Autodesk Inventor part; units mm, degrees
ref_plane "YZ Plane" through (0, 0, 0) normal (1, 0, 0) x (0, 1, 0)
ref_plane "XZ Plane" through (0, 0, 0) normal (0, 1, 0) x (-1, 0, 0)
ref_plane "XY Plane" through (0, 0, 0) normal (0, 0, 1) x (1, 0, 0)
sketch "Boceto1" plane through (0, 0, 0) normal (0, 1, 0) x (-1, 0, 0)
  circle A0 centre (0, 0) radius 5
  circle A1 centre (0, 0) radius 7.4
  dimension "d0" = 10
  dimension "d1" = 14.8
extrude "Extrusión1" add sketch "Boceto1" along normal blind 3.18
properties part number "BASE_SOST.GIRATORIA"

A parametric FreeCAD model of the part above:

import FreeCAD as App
import Part
import Sketcher

doc = App.newDocument("Part")
body = doc.addObject("PartDesign::Body", "Body")

sketch1 = body.newObject("Sketcher::SketchObject", "Sketch")
sketch1.AttachmentSupport = (doc.getObject("XZ_Plane"), [""])
sketch1.MapMode = "FlatFace"
sketch1.addGeometry(Part.Circle(App.Vector(0, 0, 0), App.Vector(0, 0, 1), 7), False)
sketch1.addGeometry(Part.Circle(App.Vector(0, 0, 0), App.Vector(0, 0, 1), 5), False)
sketch1.addConstraint(Sketcher.Constraint("Coincident", 0, 3, -1, 1))
sketch1.addConstraint(Sketcher.Constraint("Coincident", 1, 3, -1, 1))
sketch1.addConstraint(Sketcher.Constraint("Diameter", 1, 10.0))
sketch1.addConstraint(Sketcher.Constraint("Diameter", 0, 14.8))
pad1 = body.newObject("PartDesign::Pad", "Pad")
pad1.Profile = sketch1
pad1.Length = 3.18
pad1.Reversed = True

doc.recompute()
